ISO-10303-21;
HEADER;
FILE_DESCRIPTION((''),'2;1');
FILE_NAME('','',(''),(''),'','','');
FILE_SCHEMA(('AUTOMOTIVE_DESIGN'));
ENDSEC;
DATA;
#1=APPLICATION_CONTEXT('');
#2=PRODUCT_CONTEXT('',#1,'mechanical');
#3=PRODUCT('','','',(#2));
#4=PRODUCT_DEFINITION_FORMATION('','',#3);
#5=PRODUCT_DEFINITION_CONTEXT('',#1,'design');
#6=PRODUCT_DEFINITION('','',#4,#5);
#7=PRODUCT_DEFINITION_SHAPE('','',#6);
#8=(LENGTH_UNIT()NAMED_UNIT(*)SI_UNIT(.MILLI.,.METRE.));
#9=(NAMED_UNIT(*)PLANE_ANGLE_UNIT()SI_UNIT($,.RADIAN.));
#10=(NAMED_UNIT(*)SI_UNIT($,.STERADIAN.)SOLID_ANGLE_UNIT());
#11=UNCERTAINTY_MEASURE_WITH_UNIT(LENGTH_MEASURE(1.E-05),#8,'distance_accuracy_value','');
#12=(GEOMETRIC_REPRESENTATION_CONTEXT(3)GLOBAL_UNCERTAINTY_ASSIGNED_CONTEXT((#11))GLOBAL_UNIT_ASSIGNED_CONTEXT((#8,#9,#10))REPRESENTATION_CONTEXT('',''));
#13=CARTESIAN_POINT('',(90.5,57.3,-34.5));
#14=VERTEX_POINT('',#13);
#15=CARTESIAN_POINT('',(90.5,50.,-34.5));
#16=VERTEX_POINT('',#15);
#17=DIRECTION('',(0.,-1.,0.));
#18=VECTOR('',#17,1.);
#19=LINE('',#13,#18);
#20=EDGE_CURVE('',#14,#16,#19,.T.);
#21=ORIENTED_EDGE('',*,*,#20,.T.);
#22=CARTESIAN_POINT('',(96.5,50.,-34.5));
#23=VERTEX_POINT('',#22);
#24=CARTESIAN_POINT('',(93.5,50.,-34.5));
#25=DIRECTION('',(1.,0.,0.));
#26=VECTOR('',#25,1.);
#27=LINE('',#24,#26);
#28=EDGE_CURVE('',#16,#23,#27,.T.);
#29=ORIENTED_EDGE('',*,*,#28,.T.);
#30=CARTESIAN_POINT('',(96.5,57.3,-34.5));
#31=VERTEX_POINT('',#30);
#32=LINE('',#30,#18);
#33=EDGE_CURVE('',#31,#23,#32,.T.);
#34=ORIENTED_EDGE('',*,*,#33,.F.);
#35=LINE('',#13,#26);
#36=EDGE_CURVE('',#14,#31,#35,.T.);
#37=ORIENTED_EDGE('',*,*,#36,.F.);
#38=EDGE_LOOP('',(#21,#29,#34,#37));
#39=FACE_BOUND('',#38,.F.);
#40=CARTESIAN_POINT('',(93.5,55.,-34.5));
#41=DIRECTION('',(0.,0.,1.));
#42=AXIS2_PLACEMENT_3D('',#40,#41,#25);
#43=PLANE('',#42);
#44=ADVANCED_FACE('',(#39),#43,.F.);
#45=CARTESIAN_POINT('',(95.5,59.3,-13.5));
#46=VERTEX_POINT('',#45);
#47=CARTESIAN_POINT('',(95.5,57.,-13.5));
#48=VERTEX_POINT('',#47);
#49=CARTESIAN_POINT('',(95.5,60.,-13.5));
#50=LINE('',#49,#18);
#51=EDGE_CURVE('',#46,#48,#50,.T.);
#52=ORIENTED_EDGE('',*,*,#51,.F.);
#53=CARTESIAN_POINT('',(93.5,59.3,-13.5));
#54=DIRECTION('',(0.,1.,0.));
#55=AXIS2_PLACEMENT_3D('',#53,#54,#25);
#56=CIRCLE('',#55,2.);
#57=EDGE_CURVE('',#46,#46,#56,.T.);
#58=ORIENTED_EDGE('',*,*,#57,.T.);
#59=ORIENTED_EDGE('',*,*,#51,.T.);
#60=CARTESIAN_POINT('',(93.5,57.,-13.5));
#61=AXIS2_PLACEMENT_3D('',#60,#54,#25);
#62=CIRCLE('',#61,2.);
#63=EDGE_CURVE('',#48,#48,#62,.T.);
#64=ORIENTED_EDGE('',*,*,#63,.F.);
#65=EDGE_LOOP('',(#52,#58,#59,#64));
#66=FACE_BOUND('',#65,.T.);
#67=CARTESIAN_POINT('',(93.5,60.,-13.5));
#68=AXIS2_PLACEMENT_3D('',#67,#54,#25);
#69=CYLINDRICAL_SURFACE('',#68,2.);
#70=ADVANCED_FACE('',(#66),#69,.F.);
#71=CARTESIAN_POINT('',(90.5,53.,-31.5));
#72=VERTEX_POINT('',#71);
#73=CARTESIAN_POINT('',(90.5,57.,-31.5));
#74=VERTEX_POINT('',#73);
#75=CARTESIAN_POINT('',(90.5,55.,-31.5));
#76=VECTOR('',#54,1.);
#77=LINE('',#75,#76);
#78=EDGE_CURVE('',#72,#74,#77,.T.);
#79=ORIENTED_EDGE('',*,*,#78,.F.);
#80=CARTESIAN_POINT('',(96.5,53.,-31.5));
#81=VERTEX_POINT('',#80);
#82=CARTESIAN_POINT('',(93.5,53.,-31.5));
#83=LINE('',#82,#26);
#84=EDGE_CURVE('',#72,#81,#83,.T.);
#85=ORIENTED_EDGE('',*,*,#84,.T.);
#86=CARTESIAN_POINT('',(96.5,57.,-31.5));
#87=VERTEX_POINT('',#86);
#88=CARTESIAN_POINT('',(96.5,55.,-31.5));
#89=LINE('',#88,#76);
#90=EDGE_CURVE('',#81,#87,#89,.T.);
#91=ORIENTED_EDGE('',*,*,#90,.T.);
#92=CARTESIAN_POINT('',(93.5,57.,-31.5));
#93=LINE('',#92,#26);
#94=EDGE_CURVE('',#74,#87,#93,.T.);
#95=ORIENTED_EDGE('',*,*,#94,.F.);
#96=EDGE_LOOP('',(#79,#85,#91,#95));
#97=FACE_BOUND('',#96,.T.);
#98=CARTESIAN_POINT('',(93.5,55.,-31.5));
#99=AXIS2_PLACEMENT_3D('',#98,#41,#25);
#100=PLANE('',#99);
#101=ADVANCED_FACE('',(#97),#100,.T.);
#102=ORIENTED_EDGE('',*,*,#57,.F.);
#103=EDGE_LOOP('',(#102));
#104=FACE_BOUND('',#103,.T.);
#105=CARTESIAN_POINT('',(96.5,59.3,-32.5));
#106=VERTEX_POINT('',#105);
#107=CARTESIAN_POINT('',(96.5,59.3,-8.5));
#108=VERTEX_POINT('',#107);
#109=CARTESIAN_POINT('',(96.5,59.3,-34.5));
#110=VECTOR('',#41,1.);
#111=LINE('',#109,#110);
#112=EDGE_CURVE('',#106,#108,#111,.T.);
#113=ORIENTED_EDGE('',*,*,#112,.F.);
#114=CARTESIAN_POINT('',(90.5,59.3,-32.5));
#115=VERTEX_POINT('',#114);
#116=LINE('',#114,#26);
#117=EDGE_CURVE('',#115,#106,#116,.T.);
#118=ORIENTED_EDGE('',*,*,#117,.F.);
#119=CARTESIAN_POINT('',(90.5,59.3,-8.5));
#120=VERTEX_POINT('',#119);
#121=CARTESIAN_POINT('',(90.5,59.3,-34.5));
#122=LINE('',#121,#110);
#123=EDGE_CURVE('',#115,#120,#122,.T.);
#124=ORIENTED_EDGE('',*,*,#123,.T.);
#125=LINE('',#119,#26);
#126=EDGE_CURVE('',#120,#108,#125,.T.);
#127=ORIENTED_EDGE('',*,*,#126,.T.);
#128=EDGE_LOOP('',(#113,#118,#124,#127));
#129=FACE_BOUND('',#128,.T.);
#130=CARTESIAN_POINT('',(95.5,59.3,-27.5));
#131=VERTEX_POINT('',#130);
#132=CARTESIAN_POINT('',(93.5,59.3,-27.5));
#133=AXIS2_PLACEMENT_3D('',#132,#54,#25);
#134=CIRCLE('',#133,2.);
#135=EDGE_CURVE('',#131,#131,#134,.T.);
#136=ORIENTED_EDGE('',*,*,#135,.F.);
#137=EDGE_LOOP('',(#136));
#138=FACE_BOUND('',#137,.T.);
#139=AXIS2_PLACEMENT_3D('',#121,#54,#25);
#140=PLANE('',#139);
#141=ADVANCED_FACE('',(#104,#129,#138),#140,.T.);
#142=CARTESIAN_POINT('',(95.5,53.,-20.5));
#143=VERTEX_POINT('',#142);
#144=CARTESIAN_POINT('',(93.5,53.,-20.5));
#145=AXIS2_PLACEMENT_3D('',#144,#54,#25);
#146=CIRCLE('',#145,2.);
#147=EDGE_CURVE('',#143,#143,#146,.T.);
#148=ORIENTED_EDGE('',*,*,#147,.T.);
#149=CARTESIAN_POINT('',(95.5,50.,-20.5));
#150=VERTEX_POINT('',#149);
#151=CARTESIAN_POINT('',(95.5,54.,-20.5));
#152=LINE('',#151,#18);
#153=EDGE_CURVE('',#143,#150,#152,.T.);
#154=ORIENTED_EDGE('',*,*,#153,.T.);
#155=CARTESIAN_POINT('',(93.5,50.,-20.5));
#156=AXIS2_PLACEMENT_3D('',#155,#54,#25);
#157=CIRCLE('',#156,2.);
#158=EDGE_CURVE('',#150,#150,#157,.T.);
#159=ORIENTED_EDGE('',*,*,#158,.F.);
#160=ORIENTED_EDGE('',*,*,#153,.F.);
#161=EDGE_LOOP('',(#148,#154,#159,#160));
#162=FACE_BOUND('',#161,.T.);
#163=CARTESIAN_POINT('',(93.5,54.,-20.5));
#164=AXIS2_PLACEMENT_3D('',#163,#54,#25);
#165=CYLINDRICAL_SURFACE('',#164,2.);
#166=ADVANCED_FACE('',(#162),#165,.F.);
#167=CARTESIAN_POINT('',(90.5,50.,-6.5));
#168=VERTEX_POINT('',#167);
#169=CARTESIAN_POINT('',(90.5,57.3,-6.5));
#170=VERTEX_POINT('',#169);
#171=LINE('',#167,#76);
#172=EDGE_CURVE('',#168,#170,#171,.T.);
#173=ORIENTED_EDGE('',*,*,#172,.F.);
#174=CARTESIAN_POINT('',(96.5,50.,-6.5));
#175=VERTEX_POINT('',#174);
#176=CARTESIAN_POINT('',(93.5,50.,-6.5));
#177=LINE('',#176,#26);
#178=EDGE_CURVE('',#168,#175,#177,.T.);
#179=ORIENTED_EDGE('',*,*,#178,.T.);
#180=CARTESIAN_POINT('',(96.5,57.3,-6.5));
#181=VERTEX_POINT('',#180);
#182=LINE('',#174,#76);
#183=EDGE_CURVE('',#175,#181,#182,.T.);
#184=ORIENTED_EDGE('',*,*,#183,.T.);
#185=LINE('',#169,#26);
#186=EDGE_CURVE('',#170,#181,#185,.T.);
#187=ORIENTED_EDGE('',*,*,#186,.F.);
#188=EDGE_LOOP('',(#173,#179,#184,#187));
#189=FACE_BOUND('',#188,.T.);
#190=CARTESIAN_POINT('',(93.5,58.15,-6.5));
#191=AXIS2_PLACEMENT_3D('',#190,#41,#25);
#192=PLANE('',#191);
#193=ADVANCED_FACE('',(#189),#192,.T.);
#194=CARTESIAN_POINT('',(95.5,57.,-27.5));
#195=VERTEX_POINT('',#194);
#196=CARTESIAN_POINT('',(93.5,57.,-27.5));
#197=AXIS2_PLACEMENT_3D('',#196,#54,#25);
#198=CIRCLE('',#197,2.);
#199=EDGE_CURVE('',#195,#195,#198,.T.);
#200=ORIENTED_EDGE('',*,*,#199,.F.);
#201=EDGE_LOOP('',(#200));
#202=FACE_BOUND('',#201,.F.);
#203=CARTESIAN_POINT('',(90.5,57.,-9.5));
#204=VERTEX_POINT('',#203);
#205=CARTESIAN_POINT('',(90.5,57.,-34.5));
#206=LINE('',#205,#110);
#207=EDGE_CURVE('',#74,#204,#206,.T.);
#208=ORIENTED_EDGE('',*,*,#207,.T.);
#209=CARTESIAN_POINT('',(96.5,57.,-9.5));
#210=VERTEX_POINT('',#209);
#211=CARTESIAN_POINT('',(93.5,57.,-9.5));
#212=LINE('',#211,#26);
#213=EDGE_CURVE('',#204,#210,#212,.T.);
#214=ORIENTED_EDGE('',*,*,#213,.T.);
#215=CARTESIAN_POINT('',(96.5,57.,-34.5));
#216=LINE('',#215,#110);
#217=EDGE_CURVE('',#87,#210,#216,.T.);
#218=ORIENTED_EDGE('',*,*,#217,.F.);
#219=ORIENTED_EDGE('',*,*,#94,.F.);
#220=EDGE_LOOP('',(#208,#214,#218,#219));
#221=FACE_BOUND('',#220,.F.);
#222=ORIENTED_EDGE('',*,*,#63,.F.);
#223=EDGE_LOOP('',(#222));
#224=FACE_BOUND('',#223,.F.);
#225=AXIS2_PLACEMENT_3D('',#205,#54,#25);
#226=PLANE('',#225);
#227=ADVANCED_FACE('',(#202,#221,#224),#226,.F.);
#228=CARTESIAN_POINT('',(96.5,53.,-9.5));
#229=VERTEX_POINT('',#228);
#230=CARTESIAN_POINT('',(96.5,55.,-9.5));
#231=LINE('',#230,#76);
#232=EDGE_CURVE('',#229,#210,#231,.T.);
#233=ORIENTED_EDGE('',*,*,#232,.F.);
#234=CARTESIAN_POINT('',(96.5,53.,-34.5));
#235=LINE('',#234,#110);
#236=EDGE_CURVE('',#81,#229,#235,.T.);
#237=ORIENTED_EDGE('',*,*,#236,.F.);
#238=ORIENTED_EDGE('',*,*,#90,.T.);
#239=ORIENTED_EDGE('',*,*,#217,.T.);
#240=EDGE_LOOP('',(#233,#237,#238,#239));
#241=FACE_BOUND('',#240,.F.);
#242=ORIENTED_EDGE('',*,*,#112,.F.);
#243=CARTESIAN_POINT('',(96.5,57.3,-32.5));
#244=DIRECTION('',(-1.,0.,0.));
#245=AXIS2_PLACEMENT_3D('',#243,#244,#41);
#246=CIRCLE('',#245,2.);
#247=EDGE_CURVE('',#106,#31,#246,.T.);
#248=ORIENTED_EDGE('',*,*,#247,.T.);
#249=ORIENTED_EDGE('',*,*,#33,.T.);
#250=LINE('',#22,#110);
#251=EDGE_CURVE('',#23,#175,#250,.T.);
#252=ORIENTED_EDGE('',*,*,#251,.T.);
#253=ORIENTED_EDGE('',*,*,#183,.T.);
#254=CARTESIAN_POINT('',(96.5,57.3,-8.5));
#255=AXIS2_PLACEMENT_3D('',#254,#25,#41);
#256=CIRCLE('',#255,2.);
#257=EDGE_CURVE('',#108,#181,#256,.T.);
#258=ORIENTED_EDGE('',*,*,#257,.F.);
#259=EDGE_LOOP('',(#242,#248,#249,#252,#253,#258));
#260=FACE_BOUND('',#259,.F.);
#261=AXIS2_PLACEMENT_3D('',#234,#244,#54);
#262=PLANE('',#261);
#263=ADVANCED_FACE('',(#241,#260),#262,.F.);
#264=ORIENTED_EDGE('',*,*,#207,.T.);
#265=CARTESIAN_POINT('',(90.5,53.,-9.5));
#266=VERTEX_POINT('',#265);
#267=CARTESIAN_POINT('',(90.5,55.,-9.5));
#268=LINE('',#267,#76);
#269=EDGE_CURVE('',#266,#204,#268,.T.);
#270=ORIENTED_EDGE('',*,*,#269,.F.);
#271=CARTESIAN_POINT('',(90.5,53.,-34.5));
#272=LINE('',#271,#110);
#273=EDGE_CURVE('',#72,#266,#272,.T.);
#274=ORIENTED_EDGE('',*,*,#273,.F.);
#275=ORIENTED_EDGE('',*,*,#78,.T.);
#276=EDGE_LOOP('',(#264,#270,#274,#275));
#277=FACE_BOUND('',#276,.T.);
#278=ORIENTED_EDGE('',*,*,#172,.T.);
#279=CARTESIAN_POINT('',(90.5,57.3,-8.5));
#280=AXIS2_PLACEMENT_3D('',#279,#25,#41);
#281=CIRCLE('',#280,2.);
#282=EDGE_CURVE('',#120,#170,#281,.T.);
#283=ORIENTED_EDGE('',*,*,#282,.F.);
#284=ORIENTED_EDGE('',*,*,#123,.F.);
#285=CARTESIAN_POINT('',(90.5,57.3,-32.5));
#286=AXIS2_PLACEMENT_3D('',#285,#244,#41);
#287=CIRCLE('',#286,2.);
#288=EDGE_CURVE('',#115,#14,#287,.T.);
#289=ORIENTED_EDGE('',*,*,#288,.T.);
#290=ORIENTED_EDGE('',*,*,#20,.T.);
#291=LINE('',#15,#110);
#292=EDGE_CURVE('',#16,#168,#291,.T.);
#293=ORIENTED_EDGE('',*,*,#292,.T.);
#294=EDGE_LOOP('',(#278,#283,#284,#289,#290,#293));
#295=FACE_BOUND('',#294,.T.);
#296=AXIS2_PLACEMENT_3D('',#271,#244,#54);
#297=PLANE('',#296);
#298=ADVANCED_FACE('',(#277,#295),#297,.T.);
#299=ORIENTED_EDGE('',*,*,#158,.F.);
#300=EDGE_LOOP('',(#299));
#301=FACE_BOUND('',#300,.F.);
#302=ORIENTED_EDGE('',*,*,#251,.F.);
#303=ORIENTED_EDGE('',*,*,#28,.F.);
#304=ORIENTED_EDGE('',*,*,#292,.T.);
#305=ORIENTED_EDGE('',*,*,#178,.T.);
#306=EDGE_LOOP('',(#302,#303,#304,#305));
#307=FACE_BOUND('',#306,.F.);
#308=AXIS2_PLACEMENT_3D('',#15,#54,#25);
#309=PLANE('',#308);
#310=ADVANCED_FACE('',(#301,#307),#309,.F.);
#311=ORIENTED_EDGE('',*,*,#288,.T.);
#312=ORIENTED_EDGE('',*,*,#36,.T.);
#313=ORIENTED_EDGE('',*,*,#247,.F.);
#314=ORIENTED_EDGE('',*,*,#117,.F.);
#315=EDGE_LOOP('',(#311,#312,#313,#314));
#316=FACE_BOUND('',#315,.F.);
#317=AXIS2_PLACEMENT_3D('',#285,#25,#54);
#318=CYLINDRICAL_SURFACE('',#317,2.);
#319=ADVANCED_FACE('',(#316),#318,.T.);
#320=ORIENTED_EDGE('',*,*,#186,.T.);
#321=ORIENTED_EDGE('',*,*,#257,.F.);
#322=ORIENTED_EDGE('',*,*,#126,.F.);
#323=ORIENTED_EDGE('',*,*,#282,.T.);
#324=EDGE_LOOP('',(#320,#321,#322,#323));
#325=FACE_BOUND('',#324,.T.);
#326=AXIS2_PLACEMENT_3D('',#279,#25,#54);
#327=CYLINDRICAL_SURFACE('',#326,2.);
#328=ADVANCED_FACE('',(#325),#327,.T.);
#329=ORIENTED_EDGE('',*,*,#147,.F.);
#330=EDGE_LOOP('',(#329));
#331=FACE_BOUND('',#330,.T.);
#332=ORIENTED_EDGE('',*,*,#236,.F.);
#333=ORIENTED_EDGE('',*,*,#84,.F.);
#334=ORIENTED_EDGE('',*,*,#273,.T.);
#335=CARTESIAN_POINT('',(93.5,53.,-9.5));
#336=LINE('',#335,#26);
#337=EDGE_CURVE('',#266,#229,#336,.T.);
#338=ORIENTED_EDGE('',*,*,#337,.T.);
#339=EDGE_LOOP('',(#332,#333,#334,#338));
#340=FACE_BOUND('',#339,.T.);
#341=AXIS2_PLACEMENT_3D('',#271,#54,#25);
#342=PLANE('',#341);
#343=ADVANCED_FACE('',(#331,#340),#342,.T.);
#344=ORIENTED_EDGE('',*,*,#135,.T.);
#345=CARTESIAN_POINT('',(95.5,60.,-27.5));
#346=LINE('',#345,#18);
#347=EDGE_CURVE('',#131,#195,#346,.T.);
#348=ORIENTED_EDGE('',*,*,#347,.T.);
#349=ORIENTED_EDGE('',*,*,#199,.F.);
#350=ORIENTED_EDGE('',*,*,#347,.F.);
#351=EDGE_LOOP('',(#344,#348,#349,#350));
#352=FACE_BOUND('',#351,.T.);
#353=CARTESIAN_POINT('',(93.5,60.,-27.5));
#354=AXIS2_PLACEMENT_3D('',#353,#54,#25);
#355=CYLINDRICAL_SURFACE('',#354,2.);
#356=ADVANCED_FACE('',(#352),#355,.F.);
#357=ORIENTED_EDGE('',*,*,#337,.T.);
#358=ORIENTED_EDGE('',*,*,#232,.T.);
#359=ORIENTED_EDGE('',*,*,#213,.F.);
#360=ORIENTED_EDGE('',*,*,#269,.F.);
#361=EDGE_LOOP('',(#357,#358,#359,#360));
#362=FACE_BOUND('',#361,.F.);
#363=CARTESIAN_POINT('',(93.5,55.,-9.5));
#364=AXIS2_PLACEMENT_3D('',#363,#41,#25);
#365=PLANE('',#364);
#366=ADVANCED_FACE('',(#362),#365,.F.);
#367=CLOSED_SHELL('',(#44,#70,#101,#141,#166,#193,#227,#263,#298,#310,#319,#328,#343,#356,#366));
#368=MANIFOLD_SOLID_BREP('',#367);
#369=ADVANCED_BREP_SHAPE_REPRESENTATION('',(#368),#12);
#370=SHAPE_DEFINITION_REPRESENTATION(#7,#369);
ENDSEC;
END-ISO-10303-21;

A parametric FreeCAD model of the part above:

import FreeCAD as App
import Part
import Sketcher

V = App.Vector
Q = App.Units.Quantity


def edges_at(feature, points):
    """Names of the edges that pass closest to the given points."""
    edges = feature.Shape.Edges
    near = lambda p: min(range(len(edges)), key=lambda i: edges[i].distToShape(Part.Vertex(*p))[0])
    return sorted({f"Edge{near(p) + 1}" for p in points})


def add_polygon(sketch, points):
    """Adds a closed chain of lines whose ends are joined by coincident constraints."""
    first, n = sketch.GeometryCount, len(points)
    for a, b in zip(points, points[1:] + points[:1]):
        sketch.addGeometry(Part.LineSegment(App.Vector(*a, 0), App.Vector(*b, 0)), False)
    for i in range(n):
        sketch.addConstraint(Sketcher.Constraint("Coincident", first + i, 2, first + (i + 1) % n, 1))

doc = App.newDocument("Part")
body = doc.addObject("PartDesign::Body", "Body")

# Sketch on XY plane
sketch1 = body.newObject("Sketcher::SketchObject", "Sketch")
sketch1.AttachmentSupport = (doc.getObject("XY_Plane"), [""])
sketch1.MapMode = "FlatFace"
sketch1.AttachmentOffset = App.Placement(V(0, 0, -9.5), App.Rotation())
add_polygon(sketch1, [(22.5, 57), (22.5, 53), (28.5, 53), (28.5, 57)])  # lines 0-3
sketch1.addConstraint([
    Sketcher.Constraint("Vertical", 0),
    Sketcher.Constraint("Horizontal", 1),
    Sketcher.Constraint("Vertical", 2),
    Sketcher.Constraint("Horizontal", 3),
    Sketcher.Constraint("DistanceX", 1, 1, 1, 2, Q("6 mm")),
    Sketcher.Constraint("DistanceY", 0, 2, 0, 1, Q("4 mm")),
    Sketcher.Constraint("DistanceY", -1, 1, 0, 2, Q("53 mm")),
    Sketcher.Constraint("DistanceX", -1, 1, 0, 2, Q("22.5 mm")),
])
pad1 = body.newObject("PartDesign::Pad", "Pad")
pad1.Profile = sketch1
pad1.Length = 3
body2 = doc.addObject("PartDesign::Body", "Body001")

# Sketch on XZ plane
sketch2 = body2.newObject("Sketcher::SketchObject", "Sketch001")
sketch2.AttachmentSupport = (doc.getObject("XZ_Plane001"), [""])
sketch2.MapMode = "FlatFace"
sketch2.AttachmentOffset = App.Placement(V(0, 0, -60), App.Rotation())
sketch2.addGeometry(Part.Circle(V(25.5, -27.5, 0), V(0, 0, 1), 2), False)
sketch2.addConstraint([
    Sketcher.Constraint("Diameter", 0, Q("4 mm")),
    Sketcher.Constraint("DistanceX", -1, 1, 0, 3, Q("25.5 mm")),
    Sketcher.Constraint("DistanceY", 0, 3, -1, 1, Q("27.5 mm")),
])
pad2 = body2.newObject("PartDesign::Pad", "Pad001")
pad2.Profile = sketch2
pad2.Length = 5
body3 = doc.addObject("PartDesign::Body", "Body002")

# Sketch on XZ plane
sketch3 = body3.newObject("Sketcher::SketchObject", "Sketch002")
sketch3.AttachmentSupport = (doc.getObject("XZ_Plane002"), [""])
sketch3.MapMode = "FlatFace"
sketch3.AttachmentOffset = App.Placement(V(0, 0, -60), App.Rotation())
sketch3.addGeometry(Part.Circle(V(25.5, -13.5, 0), V(0, 0, 1), 2), False)
sketch3.addConstraint([
    Sketcher.Constraint("Diameter", 0, Q("4 mm")),
    Sketcher.Constraint("DistanceX", -1, 1, 0, 3, Q("25.5 mm")),
    Sketcher.Constraint("DistanceY", 0, 3, -1, 1, Q("13.5 mm")),
])
pad3 = body3.newObject("PartDesign::Pad", "Pad002")
pad3.Profile = sketch3
pad3.Length = 5
body4 = doc.addObject("PartDesign::Body", "Body003")

# Sketch on XY plane
sketch4 = body4.newObject("Sketcher::SketchObject", "Sketch003")
sketch4.AttachmentSupport = (doc.getObject("XY_Plane003"), [""])
sketch4.MapMode = "FlatFace"
sketch4.AttachmentOffset = App.Placement(V(0, 0, -34.5), App.Rotation())
add_polygon(sketch4, [(22.5, 59.3), (22.5, 57), (28.5, 57), (28.5, 59.3)])  # lines 0-3
sketch4.addConstraint([
    Sketcher.Constraint("Vertical", 0),
    Sketcher.Constraint("Horizontal", 1),
    Sketcher.Constraint("Vertical", 2),
    Sketcher.Constraint("Horizontal", 3),
    Sketcher.Constraint("DistanceX", 1, 1, 1, 2, Q("6 mm")),
    Sketcher.Constraint("DistanceY", 0, 2, 0, 1, Q("2.3 mm")),
    Sketcher.Constraint("DistanceY", -1, 1, 0, 2, Q("57 mm")),
    Sketcher.Constraint("DistanceX", -1, 1, 0, 2, Q("22.5 mm")),
])
pad4 = body4.newObject("PartDesign::Pad", "Pad003")
pad4.Profile = sketch4
pad4.Length = 28
doc.recompute()

boolean = body4.newObject("PartDesign::Boolean", "Boolean")
boolean.Type = "Cut"
boolean.addObjects([body3])
doc.recompute()

boolean2 = body4.newObject("PartDesign::Boolean", "Boolean001")
boolean2.Type = "Cut"
boolean2.addObjects([body2])
doc.recompute()

fillet = body4.newObject("PartDesign::Fillet", "Fillet")
fillet.Base = (boolean2, edges_at(boolean2, [(25.5, 59.3, -6.5), (25.5, 59.3, -34.5)]))
fillet.Radius = 2
body5 = doc.addObject("PartDesign::Body", "Body004")

# Sketch on XY plane
sketch5 = body5.newObject("Sketcher::SketchObject", "Sketch004")
sketch5.AttachmentSupport = (doc.getObject("XY_Plane004"), [""])
sketch5.MapMode = "FlatFace"
sketch5.AttachmentOffset = App.Placement(V(0, 0, -34.5), App.Rotation())
add_polygon(sketch5, [(22.5, 57), (22.5, 53), (28.5, 53), (28.5, 57)])  # lines 0-3
sketch5.addConstraint([
    Sketcher.Constraint("Vertical", 0),
    Sketcher.Constraint("Horizontal", 1),
    Sketcher.Constraint("Vertical", 2),
    Sketcher.Constraint("Horizontal", 3),
    Sketcher.Constraint("DistanceX", 1, 1, 1, 2, Q("6 mm")),
    Sketcher.Constraint("DistanceY", 0, 2, 0, 1, Q("4 mm")),
    Sketcher.Constraint("DistanceY", -1, 1, 0, 2, Q("53 mm")),
    Sketcher.Constraint("DistanceX", -1, 1, 0, 2, Q("22.5 mm")),
])
pad5 = body5.newObject("PartDesign::Pad", "Pad004")
pad5.Profile = sketch5
pad5.Length = 3
body6 = doc.addObject("PartDesign::Body", "Body005")

# Sketch on XZ plane
sketch6 = body6.newObject("Sketcher::SketchObject", "Sketch005")
sketch6.AttachmentSupport = (doc.getObject("XZ_Plane005"), [""])
sketch6.MapMode = "FlatFace"
sketch6.AttachmentOffset = App.Placement(V(0, 0, -54), App.Rotation())
sketch6.addGeometry(Part.Circle(V(25.5, -20.5, 0), V(0, 0, 1), 2), False)
sketch6.addConstraint([
    Sketcher.Constraint("Diameter", 0, Q("4 mm")),
    Sketcher.Constraint("DistanceX", -1, 1, 0, 3, Q("25.5 mm")),
    Sketcher.Constraint("DistanceY", 0, 3, -1, 1, Q("20.5 mm")),
])
pad6 = body6.newObject("PartDesign::Pad", "Pad005")
pad6.Profile = sketch6
pad6.Length = 5
body7 = doc.addObject("PartDesign::Body", "Body006")

# Sketch on XY plane
sketch7 = body7.newObject("Sketcher::SketchObject", "Sketch006")
sketch7.AttachmentSupport = (doc.getObject("XY_Plane006"), [""])
sketch7.MapMode = "FlatFace"
sketch7.AttachmentOffset = App.Placement(V(0, 0, -34.5), App.Rotation())
add_polygon(sketch7, [(22.5, 53), (22.5, 50), (28.5, 50), (28.5, 53)])  # lines 0-3
sketch7.addConstraint([
    Sketcher.Constraint("Vertical", 0),
    Sketcher.Constraint("Horizontal", 1),
    Sketcher.Constraint("Vertical", 2),
    Sketcher.Constraint("Horizontal", 3),
    Sketcher.Constraint("DistanceX", 1, 1, 1, 2, Q("6 mm")),
    Sketcher.Constraint("DistanceY", 0, 2, 0, 1, Q("3 mm")),
    Sketcher.Constraint("DistanceY", -1, 1, 0, 2, Q("50 mm")),
    Sketcher.Constraint("DistanceX", -1, 1, 0, 2, Q("22.5 mm")),
])
pad7 = body7.newObject("PartDesign::Pad", "Pad006")
pad7.Profile = sketch7
pad7.Length = 28
doc.recompute()

boolean3 = body7.newObject("PartDesign::Boolean", "Boolean002")
boolean3.Type = "Cut"
boolean3.addObjects([body6])
doc.recompute()

boolean4 = body7.newObject("PartDesign::Boolean", "Boolean003")
boolean4.Type = "Fuse"
boolean4.addObjects([body])
doc.recompute()

boolean5 = body7.newObject("PartDesign::Boolean", "Boolean004")
boolean5.Type = "Fuse"
boolean5.addObjects([body4])
doc.recompute()

boolean6 = body7.newObject("PartDesign::Boolean", "Boolean005")
boolean6.Type = "Fuse"
boolean6.addObjects([body5])
body8 = doc.addObject("PartDesign::Body", "Body007")
doc.recompute()

body7.Placement = App.Placement(V(68, 0, 0), App.Rotation(V(0, 0, 1), 0))
boolean7 = body8.newObject("PartDesign::Boolean", "Boolean006")
boolean7.Type = "Fuse"
boolean7.addObjects([body7])

doc.recompute()
